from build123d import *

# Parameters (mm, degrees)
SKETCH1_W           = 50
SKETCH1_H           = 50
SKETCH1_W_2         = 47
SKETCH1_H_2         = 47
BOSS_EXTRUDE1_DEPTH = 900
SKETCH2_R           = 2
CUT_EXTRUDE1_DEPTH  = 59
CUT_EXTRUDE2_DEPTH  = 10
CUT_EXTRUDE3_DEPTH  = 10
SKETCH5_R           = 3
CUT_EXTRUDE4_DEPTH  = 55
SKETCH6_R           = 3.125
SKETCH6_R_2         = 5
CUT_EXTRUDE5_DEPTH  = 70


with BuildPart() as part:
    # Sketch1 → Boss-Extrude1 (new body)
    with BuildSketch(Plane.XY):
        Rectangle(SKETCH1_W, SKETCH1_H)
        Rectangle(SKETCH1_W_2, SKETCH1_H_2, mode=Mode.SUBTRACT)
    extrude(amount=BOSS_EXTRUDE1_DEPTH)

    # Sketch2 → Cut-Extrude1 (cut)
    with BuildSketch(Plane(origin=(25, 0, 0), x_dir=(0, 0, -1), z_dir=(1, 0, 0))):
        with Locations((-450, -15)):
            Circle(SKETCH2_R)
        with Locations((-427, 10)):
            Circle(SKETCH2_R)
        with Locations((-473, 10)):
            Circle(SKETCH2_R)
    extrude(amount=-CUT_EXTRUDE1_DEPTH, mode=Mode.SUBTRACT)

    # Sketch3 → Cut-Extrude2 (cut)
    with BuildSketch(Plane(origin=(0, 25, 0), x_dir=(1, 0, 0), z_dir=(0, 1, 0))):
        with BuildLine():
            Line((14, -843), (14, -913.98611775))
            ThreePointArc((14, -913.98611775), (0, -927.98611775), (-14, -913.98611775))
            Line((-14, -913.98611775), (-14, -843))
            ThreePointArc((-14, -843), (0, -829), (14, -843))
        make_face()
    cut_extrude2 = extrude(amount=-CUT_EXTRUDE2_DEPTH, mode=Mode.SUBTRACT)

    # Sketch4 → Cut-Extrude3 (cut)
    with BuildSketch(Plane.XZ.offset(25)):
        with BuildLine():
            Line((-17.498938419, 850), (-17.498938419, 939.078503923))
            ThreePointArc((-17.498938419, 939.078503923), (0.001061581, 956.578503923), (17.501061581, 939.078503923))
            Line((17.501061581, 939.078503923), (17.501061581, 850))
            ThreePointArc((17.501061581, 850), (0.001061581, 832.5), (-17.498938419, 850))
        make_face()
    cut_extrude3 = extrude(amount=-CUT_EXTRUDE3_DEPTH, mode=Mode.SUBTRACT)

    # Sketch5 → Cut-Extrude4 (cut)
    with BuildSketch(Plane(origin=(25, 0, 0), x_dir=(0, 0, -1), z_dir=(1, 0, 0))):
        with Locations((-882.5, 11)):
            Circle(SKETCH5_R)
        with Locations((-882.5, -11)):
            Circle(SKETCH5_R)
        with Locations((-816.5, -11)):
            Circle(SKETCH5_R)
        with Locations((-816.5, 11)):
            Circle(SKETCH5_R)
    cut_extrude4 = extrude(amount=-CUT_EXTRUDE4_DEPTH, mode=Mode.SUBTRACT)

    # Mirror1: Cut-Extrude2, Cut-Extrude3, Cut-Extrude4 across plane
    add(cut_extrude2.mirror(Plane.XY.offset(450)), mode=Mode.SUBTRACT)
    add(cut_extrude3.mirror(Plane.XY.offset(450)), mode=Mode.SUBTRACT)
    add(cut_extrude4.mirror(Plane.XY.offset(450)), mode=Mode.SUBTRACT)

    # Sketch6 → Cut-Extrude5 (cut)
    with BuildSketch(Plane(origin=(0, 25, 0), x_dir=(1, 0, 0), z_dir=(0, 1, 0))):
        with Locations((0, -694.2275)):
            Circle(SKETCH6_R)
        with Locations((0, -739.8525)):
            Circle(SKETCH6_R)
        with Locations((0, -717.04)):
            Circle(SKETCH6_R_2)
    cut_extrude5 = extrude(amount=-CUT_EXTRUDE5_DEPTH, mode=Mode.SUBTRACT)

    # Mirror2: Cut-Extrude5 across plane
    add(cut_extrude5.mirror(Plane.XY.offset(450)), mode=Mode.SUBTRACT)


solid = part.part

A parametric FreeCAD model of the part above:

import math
import FreeCAD as App
import Part
import Sketcher

V = App.Vector

doc = App.newDocument("Part")
body = doc.addObject("PartDesign::Body", "Body")

# Sketch on XY plane
sketch1 = body.newObject("Sketcher::SketchObject", "Sketch")
sketch1.AttachmentSupport = (doc.getObject("XY_Plane"), [""])
sketch1.MapMode = "FlatFace"
sketch1.addGeometry([
    Part.LineSegment(V(-25, 25, 0), V(-25, -25, 0)),  # 0
    Part.LineSegment(V(-25, -25, 0), V(25, -25, 0)),  # 1
    Part.LineSegment(V(25, -25, 0), V(25, 25, 0)),  # 2
    Part.LineSegment(V(25, 25, 0), V(-25, 25, 0)),  # 3
    Part.LineSegment(V(23.5, -23.5, 0), V(-23.5, -23.5, 0)),  # 4
    Part.LineSegment(V(-23.5, -23.5, 0), V(-23.5, 23.5, 0)),  # 5
    Part.LineSegment(V(-23.5, 23.5, 0), V(23.5, 23.5, 0)),  # 6
    Part.LineSegment(V(23.5, 23.5, 0), V(23.5, -23.5, 0)),  # 7
], False)
sketch1.addConstraint([
    Sketcher.Constraint("Coincident", 0, 2, 1, 1),
    Sketcher.Constraint("Coincident", 1, 2, 2, 1),
    Sketcher.Constraint("Coincident", 2, 2, 3, 1),
    Sketcher.Constraint("Coincident", 3, 2, 0, 1),
    Sketcher.Constraint("Coincident", 4, 2, 5, 1),
    Sketcher.Constraint("Coincident", 5, 2, 6, 1),
    Sketcher.Constraint("Coincident", 6, 2, 7, 1),
    Sketcher.Constraint("Coincident", 7, 2, 4, 1),
    Sketcher.Constraint("Vertical", 0),
    Sketcher.Constraint("Horizontal", 1),
    Sketcher.Constraint("Vertical", 2),
    Sketcher.Constraint("Horizontal", 3),
    Sketcher.Constraint("Horizontal", 4),
    Sketcher.Constraint("Vertical", 5),
    Sketcher.Constraint("Horizontal", 6),
    Sketcher.Constraint("Vertical", 7),
    Sketcher.Constraint("Symmetric", 0, 2, 2, 2, -1, 1),
    Sketcher.Constraint("Symmetric", 4, 2, 6, 2, -1, 1),
    Sketcher.Constraint("Equal", 3, 0),
    Sketcher.Constraint("Equal", 6, 5),
    Sketcher.Constraint("DistanceX", 1, 1, 1, 2, 50.0),
    Sketcher.Constraint("DistanceX", 4, 2, 4, 1, 47.0),
])
pad1 = body.newObject("PartDesign::Pad", "Pad")
pad1.Profile = sketch1
pad1.Length = 900

# Sketch on YZ plane
sketch2 = body.newObject("Sketcher::SketchObject", "Sketch001")
sketch2.AttachmentSupport = (doc.getObject("YZ_Plane"), [""])
sketch2.MapMode = "FlatFace"
sketch2.AttachmentOffset = App.Placement(V(0, 0, 25), App.Rotation())
sketch2.addGeometry([
    Part.Circle(V(-15, 450, 0), V(0, 0, 1), 2),
    Part.Circle(V(10, 427, 0), V(0, 0, 1), 2),
    Part.Circle(V(10, 473, 0), V(0, 0, 1), 2),
], False)
sketch2.addConstraint([
    Sketcher.Constraint("Equal", 0, 1),
    Sketcher.Constraint("Equal", 1, 2),
    Sketcher.Constraint("Vertical", 1, 3, 2, 3),
    Sketcher.Constraint("Diameter", 0, 4.0),
    Sketcher.Constraint("DistanceX", 0, 3, -1, 1, 15.0),
    Sketcher.Constraint("DistanceY", -1, 1, 0, 3, 450.0),
    Sketcher.Constraint("DistanceX", -1, 1, 1, 3, 10.0),
    Sketcher.Constraint("DistanceY", -1, 1, 1, 3, 427.0),
    Sketcher.Constraint("DistanceY", -1, 1, 2, 3, 473.0),
])
pocket1 = body.newObject("PartDesign::Pocket", "Pocket")
pocket1.Profile = sketch2
pocket1.Length = 59

# Sketch on XZ plane
sketch3 = body.newObject("Sketcher::SketchObject", "Sketch002")
sketch3.AttachmentSupport = (doc.getObject("XZ_Plane"), [""])
sketch3.MapMode = "FlatFace"
sketch3.AttachmentOffset = App.Placement(V(0, 0, -25), App.Rotation())
sketch3.addGeometry([
    Part.LineSegment(V(14, 913.986118, 0), V(14, 843, 0)),
    Part.ArcOfCircle(Part.Circle(V(0, 843, 0), V(0, 0, 1), 14), math.radians(180), math.radians(360)),
    Part.LineSegment(V(-14, 843, 0), V(-14, 913.986118, 0)),
    Part.ArcOfCircle(Part.Circle(V(0, 913.986118, 0), V(0, 0, 1), 14), math.radians(0), math.radians(180)),
], False)
sketch3.addConstraint([
    Sketcher.Constraint("Tangent", 0, 2, 1, 2),
    Sketcher.Constraint("Tangent", 1, 1, 2, 1),
    Sketcher.Constraint("Tangent", 2, 2, 3, 2),
    Sketcher.Constraint("Tangent", 3, 1, 0, 1),
    Sketcher.Constraint("Vertical", 0),
    Sketcher.Constraint("Vertical", 2),
    Sketcher.Constraint("PointOnObject", 1, 3, -2),
    Sketcher.Constraint("Radius", 1, 14.0),
    Sketcher.Constraint("DistanceY", -1, 1, 1, 3, 843.0),
    Sketcher.Constraint("DistanceY", 0, 2, 0, 1, 70.986118),
])
pocket2 = body.newObject("PartDesign::Pocket", "Pocket001")
pocket2.Profile = sketch3
pocket2.Length = 10
pocket2.Reversed = True

# Sketch on XZ plane
sketch4 = body.newObject("Sketcher::SketchObject", "Sketch003")
sketch4.AttachmentSupport = (doc.getObject("XZ_Plane"), [""])
sketch4.MapMode = "FlatFace"
sketch4.AttachmentOffset = App.Placement(V(0, 0, 25), App.Rotation())
sketch4.addGeometry([
    Part.LineSegment(V(-17.498938, 939.078504, 0), V(-17.498938, 850, 0)),
    Part.ArcOfCircle(Part.Circle(V(0.001062, 850, 0), V(0, 0, 1), 17.5), math.radians(180), math.radians(360)),
    Part.LineSegment(V(17.501062, 850, 0), V(17.501062, 939.078504, 0)),
    Part.ArcOfCircle(Part.Circle(V(0.001062, 939.078504, 0), V(0, 0, 1), 17.5), math.radians(0), math.radians(180)),
], False)
sketch4.addConstraint([
    Sketcher.Constraint("Tangent", 0, 2, 1, 1),
    Sketcher.Constraint("Tangent", 1, 2, 2, 1),
    Sketcher.Constraint("Tangent", 2, 2, 3, 1),
    Sketcher.Constraint("Tangent", 3, 2, 0, 1),
    Sketcher.Constraint("Vertical", 0),
    Sketcher.Constraint("Vertical", 2),
    Sketcher.Constraint("Radius", 1, 17.5),
    Sketcher.Constraint("DistanceY", -1, 1, 1, 3, 850.0),
    Sketcher.Constraint("DistanceY", 0, 2, 0, 1, 89.078504),
    Sketcher.Constraint("DistanceX", -1, 1, 1, 3, 0.001062),
])
pocket3 = body.newObject("PartDesign::Pocket", "Pocket002")
pocket3.Profile = sketch4
pocket3.Length = 10

# Sketch on YZ plane
sketch5 = body.newObject("Sketcher::SketchObject", "Sketch004")
sketch5.AttachmentSupport = (doc.getObject("YZ_Plane"), [""])
sketch5.MapMode = "FlatFace"
sketch5.AttachmentOffset = App.Placement(V(0, 0, 25), App.Rotation())
sketch5.addGeometry([
    Part.Circle(V(11, 882.5, 0), V(0, 0, 1), 3),
    Part.Circle(V(-11, 882.5, 0), V(0, 0, 1), 3),
    Part.Circle(V(-11, 816.5, 0), V(0, 0, 1), 3),
    Part.Circle(V(11, 816.5, 0), V(0, 0, 1), 3),
], False)
sketch5.addConstraint([
    Sketcher.Constraint("Equal", 0, 1),
    Sketcher.Constraint("Equal", 1, 2),
    Sketcher.Constraint("Equal", 2, 3),
    Sketcher.Constraint("Symmetric", 0, 3, 1, 3, -2),
    Sketcher.Constraint("Symmetric", 2, 3, 3, 3, -2),
    Sketcher.Constraint("Vertical", 1, 3, 2, 3),
    Sketcher.Constraint("Diameter", 0, 6.0),
    Sketcher.Constraint("DistanceX", -1, 1, 0, 3, 11.0),
    Sketcher.Constraint("DistanceY", 2, 3, 1, 3, 66.0),
    Sketcher.Constraint("DistanceY", -1, 1, 0, 3, 882.5),
])
pocket4 = body.newObject("PartDesign::Pocket", "Pocket003")
pocket4.Profile = sketch5
pocket4.Length = 55
doc.recompute()

datumplane = body.newObject("PartDesign::Plane", "DatumPlane")
datumplane.AttachmentSupport = (doc.getObject("XY_Plane"), [""])
datumplane.MapMode = "FlatFace"
datumplane.AttachmentOffset = App.Placement(V(0, 0, 450), App.Rotation())
mirrored = body.newObject("PartDesign::Mirrored", "Mirrored")
mirrored.Originals = [pocket2, pocket3, pocket4]
mirrored.MirrorPlane = (datumplane, [""])
body.Tip = mirrored

# Sketch on XZ plane
sketch6 = body.newObject("Sketcher::SketchObject", "Sketch005")
sketch6.AttachmentSupport = (doc.getObject("XZ_Plane"), [""])
sketch6.MapMode = "FlatFace"
sketch6.AttachmentOffset = App.Placement(V(0, 0, -25), App.Rotation())
sketch6.addGeometry([
    Part.Circle(V(0, 694.2275, 0), V(0, 0, 1), 3.125),
    Part.Circle(V(0, 739.8525, 0), V(0, 0, 1), 3.125),
    Part.Circle(V(0, 717.04, 0), V(0, 0, 1), 5),
], False)
sketch6.addConstraint([
    Sketcher.Constraint("Equal", 0, 1),
    Sketcher.Constraint("PointOnObject", 0, 3, -2),
    Sketcher.Constraint("PointOnObject", 1, 3, -2),
    Sketcher.Constraint("PointOnObject", 2, 3, -2),
    Sketcher.Constraint("Diameter", 2, 10.0),
    Sketcher.Constraint("Diameter", 0, 6.25),
    Sketcher.Constraint("DistanceY", -1, 1, 2, 3, 717.04),
    Sketcher.Constraint("DistanceY", 0, 3, 1, 3, 45.625),
    Sketcher.Constraint("DistanceY", -1, 1, 0, 3, 694.2275),
])
pocket5 = body.newObject("PartDesign::Pocket", "Pocket004")
pocket5.Profile = sketch6
pocket5.Length = 70
pocket5.Reversed = True
doc.recompute()

datumplane2 = body.newObject("PartDesign::Plane", "DatumPlane001")
datumplane2.AttachmentSupport = (doc.getObject("XY_Plane"), [""])
datumplane2.MapMode = "FlatFace"
datumplane2.AttachmentOffset = App.Placement(V(0, 0, 450), App.Rotation())
mirrored2 = body.newObject("PartDesign::Mirrored", "Mirrored001")
mirrored2.Originals = [pocket5]
mirrored2.MirrorPlane = (datumplane2, [""])
body.Tip = mirrored2

doc.recompute()
